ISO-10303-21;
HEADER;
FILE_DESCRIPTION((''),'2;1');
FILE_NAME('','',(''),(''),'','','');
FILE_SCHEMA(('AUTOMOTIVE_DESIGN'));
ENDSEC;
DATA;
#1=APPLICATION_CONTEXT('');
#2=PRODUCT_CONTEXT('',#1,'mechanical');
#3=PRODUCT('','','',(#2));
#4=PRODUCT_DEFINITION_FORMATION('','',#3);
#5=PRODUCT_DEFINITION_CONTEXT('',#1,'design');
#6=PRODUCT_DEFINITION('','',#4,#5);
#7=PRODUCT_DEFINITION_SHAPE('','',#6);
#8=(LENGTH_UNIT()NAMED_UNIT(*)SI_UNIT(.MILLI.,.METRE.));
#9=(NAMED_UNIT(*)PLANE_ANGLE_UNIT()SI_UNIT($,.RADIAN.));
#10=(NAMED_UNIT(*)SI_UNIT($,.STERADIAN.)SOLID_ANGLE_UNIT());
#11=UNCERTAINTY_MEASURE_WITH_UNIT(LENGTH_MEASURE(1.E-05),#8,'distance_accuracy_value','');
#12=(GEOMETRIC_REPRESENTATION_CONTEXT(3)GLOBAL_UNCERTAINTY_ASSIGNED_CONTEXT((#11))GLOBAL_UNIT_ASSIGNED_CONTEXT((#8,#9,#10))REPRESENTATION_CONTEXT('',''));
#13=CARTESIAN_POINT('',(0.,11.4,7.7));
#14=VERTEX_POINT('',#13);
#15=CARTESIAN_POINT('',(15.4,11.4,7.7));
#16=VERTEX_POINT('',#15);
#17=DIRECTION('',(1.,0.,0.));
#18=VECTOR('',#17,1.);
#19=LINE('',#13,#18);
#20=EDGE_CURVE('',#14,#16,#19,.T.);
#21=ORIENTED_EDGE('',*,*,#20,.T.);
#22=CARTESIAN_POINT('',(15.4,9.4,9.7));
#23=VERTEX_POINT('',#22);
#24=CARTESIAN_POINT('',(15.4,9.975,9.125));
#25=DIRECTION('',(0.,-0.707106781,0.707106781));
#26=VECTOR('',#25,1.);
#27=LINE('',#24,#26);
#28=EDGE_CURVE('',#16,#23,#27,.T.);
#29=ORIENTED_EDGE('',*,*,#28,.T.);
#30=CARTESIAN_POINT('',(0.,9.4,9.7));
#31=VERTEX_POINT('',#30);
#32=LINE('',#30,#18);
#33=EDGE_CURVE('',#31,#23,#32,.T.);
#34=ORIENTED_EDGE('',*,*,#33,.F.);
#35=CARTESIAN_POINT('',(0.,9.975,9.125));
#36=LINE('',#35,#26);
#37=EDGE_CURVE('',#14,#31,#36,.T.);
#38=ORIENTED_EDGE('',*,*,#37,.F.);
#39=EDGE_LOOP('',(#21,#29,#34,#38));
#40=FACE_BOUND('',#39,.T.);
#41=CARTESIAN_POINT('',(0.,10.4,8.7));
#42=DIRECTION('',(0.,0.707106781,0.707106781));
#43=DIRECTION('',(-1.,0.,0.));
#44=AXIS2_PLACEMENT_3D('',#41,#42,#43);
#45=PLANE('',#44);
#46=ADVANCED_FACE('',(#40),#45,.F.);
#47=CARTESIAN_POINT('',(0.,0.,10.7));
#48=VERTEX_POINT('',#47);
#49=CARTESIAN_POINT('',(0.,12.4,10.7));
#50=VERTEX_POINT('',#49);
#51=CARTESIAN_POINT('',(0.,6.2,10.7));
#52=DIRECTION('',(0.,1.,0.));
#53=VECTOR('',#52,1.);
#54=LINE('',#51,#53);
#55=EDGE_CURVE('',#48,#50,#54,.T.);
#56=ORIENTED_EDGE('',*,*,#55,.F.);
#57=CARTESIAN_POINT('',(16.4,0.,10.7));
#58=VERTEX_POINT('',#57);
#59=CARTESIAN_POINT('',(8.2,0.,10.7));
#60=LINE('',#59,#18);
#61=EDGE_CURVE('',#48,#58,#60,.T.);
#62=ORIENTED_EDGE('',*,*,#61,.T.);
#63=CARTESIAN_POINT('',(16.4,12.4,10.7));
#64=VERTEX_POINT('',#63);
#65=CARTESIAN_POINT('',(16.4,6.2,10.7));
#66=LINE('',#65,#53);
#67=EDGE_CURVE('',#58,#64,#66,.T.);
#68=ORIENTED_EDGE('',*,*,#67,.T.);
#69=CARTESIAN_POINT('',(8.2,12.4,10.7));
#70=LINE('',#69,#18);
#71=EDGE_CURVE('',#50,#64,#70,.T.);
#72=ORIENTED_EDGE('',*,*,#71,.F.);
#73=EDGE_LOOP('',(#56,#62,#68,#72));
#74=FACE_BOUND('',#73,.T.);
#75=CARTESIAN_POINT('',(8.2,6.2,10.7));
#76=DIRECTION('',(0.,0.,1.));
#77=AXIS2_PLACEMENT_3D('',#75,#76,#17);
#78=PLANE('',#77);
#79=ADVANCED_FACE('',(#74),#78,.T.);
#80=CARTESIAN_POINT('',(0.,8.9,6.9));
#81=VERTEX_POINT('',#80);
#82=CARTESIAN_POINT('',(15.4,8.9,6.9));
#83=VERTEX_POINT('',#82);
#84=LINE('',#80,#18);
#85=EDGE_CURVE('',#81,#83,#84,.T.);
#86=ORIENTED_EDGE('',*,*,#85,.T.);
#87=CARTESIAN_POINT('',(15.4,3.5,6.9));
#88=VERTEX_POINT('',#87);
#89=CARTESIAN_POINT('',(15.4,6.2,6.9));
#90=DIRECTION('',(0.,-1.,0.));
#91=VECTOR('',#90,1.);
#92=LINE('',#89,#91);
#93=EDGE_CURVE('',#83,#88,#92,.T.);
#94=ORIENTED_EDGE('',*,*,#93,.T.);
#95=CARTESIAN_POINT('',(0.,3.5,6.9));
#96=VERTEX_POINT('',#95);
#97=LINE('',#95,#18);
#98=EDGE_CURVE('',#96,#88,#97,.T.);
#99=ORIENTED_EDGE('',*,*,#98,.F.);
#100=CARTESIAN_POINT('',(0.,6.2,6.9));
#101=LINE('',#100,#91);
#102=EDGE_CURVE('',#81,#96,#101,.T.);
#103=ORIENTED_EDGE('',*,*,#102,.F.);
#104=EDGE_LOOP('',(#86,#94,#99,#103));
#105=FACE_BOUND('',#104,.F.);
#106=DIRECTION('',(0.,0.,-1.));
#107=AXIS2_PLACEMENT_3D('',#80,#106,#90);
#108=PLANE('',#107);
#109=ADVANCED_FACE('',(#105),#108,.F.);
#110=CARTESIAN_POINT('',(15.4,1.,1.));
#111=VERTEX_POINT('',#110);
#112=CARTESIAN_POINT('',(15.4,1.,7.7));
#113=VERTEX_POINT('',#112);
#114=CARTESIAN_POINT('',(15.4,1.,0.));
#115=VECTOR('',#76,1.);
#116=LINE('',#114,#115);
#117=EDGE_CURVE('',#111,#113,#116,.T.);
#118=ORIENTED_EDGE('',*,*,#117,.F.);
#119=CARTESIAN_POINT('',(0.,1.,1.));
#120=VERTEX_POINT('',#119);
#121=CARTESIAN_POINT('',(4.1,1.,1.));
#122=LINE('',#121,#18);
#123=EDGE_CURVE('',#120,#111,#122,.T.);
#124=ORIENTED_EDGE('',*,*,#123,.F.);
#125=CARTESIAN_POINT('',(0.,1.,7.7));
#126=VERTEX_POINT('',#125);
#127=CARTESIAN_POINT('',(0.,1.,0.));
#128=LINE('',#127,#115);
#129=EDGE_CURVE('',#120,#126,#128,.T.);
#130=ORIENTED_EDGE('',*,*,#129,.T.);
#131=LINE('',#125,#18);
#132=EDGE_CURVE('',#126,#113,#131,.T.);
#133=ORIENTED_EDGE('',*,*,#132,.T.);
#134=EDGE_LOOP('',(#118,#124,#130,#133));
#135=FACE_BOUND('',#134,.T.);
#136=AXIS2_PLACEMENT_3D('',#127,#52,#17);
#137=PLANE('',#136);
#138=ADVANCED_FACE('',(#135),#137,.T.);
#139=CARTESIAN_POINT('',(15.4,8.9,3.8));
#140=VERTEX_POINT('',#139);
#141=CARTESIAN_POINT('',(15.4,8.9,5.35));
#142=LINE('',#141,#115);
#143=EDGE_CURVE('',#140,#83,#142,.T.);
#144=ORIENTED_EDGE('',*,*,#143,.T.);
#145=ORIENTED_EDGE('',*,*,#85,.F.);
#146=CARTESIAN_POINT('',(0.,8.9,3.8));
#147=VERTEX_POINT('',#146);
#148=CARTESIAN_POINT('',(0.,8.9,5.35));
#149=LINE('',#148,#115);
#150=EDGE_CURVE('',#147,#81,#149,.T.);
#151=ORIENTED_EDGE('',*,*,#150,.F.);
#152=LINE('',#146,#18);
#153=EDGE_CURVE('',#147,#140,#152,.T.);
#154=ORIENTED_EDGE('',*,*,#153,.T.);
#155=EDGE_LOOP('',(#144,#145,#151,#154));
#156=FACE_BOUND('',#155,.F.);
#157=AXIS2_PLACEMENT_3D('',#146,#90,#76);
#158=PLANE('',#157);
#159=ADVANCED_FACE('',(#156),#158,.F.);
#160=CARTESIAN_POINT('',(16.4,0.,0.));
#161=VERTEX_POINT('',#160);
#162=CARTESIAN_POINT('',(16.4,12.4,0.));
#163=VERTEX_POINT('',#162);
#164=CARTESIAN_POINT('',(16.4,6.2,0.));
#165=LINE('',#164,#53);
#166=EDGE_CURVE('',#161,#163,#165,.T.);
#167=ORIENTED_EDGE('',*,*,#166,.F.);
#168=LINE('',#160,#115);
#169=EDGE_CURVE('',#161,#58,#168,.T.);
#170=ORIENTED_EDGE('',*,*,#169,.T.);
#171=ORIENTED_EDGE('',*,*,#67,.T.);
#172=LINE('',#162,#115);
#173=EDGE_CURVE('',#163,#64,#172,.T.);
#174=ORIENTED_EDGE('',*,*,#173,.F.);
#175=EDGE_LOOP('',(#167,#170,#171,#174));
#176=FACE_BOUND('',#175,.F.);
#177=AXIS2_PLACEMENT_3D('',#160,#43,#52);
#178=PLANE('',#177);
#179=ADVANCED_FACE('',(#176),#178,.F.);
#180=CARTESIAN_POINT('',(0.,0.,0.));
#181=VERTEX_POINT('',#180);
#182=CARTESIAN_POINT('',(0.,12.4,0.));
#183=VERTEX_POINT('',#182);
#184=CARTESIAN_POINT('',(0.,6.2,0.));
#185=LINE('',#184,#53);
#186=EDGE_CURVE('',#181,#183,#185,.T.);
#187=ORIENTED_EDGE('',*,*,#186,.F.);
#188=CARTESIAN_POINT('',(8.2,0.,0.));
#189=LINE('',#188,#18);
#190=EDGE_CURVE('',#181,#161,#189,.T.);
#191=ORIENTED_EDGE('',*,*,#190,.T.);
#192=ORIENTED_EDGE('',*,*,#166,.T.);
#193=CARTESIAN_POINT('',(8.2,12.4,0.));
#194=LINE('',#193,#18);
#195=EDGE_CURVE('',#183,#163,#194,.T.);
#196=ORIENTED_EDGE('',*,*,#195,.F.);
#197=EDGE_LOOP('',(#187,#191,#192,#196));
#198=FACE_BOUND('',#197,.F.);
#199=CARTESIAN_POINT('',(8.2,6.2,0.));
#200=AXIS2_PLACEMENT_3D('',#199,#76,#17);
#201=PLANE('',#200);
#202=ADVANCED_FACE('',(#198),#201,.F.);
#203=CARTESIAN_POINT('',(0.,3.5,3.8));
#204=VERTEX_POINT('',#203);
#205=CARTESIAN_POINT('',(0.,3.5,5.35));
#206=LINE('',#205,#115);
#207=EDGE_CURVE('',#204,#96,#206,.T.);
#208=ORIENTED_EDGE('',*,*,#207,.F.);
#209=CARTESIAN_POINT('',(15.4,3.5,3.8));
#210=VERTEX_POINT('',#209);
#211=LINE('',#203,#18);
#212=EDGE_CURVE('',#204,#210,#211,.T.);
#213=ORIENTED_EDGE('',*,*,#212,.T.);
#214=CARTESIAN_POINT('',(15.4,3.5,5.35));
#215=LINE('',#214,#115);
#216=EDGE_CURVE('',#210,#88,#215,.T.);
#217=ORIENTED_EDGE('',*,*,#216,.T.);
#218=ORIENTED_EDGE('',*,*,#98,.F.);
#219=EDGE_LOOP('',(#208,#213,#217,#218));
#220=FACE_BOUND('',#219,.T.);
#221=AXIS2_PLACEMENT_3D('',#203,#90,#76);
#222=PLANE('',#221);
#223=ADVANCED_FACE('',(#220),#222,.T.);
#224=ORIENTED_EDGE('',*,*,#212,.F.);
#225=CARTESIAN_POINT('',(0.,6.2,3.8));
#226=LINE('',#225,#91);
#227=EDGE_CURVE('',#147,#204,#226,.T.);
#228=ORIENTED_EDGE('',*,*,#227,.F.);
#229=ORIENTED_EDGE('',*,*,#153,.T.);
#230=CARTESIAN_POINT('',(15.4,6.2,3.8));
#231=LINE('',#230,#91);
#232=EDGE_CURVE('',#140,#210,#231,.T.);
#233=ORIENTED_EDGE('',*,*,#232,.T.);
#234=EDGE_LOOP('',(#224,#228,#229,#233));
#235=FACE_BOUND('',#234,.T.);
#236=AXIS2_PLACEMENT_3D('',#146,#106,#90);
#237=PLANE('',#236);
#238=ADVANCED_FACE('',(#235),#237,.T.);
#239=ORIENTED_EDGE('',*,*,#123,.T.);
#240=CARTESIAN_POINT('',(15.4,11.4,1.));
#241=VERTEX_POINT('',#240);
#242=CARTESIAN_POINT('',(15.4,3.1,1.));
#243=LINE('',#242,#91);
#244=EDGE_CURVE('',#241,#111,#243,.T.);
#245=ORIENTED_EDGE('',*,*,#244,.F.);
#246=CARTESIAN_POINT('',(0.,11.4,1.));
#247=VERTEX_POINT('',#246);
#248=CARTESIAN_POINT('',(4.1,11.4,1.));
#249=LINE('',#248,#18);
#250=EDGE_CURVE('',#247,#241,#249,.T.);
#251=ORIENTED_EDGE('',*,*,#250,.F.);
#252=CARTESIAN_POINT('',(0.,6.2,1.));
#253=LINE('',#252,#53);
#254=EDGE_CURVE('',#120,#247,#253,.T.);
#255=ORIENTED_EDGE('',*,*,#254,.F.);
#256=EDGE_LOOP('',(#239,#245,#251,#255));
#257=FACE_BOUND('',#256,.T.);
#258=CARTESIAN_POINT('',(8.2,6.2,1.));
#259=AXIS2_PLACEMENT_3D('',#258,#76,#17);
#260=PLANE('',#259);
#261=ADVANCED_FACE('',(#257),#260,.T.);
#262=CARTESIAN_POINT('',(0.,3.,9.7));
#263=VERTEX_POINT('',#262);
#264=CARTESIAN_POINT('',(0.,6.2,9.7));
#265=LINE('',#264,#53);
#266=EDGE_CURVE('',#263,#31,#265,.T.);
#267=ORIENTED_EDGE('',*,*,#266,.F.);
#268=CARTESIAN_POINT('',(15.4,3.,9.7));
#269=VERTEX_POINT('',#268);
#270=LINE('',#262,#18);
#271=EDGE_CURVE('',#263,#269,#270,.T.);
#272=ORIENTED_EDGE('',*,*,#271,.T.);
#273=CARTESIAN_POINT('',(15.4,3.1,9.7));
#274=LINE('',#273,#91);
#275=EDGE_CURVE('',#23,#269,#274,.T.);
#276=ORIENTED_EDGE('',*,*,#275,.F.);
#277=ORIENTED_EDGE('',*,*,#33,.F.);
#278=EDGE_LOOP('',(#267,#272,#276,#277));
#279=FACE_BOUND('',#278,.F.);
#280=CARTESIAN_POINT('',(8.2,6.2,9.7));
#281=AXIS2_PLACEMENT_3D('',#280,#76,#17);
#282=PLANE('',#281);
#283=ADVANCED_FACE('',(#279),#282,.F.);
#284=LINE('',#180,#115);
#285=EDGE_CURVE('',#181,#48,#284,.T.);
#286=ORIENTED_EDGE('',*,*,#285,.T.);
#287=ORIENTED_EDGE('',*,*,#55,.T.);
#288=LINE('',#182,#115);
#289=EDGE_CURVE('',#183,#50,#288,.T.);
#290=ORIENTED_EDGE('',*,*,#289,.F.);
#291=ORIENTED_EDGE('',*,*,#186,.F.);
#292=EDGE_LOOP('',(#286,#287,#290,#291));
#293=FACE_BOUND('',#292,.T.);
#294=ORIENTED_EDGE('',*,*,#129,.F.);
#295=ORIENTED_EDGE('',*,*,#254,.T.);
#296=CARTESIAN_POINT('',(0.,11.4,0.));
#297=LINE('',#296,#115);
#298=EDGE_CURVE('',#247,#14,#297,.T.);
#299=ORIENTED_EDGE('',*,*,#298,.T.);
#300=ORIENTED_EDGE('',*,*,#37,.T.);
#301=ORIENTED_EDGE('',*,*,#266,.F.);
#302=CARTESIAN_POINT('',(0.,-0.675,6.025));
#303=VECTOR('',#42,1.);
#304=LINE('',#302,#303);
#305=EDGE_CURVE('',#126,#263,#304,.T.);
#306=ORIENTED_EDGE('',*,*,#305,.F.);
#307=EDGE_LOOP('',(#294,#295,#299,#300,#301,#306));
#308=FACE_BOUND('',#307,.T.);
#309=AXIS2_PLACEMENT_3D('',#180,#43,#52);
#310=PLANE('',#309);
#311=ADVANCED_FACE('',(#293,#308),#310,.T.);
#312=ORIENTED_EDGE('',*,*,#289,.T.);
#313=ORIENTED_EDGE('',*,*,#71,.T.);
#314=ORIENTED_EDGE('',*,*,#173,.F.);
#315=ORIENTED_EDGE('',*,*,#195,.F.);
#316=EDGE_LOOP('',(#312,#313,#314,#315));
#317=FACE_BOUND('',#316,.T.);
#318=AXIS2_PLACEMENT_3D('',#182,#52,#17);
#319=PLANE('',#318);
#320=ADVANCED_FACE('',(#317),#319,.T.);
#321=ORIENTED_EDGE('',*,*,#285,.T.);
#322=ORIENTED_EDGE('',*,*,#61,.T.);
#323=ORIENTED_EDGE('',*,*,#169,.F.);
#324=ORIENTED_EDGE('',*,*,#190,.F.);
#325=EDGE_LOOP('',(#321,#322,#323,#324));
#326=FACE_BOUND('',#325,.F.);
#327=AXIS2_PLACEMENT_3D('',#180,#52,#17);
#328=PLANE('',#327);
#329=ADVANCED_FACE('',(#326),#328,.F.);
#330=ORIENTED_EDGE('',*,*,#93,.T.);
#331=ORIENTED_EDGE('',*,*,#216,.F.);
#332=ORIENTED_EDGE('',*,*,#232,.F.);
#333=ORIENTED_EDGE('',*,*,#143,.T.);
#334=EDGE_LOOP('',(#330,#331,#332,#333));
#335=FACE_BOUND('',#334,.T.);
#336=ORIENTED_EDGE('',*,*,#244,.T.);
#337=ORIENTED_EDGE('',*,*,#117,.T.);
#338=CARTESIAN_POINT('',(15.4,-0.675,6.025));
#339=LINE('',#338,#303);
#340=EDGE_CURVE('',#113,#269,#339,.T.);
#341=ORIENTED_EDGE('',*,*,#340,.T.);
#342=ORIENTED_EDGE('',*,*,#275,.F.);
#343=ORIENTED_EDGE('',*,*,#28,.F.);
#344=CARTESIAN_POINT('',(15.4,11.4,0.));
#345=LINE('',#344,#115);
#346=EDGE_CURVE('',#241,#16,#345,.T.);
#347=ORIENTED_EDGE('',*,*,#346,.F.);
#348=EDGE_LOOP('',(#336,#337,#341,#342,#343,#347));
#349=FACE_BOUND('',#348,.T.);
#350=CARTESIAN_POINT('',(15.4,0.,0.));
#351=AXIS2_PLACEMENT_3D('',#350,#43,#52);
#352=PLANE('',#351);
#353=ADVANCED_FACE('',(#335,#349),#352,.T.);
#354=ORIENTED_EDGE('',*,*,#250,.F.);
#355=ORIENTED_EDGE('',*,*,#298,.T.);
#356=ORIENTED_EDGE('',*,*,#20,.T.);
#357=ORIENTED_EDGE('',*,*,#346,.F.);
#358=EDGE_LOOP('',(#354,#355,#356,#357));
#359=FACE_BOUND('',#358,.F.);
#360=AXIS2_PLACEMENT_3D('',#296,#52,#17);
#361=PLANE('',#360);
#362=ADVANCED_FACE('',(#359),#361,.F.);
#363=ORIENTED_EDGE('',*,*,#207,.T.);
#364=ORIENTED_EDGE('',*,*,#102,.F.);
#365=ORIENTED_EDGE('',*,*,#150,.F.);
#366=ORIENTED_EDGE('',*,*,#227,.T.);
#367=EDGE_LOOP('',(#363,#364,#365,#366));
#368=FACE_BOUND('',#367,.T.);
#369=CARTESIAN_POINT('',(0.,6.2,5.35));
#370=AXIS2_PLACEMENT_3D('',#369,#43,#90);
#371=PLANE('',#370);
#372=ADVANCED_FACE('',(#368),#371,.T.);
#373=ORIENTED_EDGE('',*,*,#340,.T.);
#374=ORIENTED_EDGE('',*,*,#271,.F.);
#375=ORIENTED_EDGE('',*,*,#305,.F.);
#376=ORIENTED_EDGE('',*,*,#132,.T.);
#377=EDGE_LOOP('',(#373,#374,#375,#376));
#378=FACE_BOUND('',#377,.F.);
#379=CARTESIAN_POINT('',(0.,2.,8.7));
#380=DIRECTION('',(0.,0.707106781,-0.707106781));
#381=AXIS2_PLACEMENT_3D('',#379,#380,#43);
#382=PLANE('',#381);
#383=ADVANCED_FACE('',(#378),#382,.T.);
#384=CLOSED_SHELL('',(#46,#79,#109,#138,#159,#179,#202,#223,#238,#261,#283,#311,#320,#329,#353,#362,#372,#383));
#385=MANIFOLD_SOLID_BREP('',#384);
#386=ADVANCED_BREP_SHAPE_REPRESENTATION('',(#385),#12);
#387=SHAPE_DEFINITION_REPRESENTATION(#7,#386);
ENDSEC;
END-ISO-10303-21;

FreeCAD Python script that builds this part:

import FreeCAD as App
import Part
import Sketcher
from FreeCAD import Vector


def edges_at(feature, points):
    """Names of the edges that pass closest to the given points."""
    edges = feature.Shape.Edges
    near = lambda p: min(range(len(edges)), key=lambda i: edges[i].distToShape(Part.Vertex(*p))[0])
    return sorted({f"Edge{near(p) + 1}" for p in points})


def faces_at(feature, points):
    """Names of the faces that lie closest to the given points."""
    faces = feature.Shape.Faces
    near = lambda p: min(range(len(faces)), key=lambda i: faces[i].distToShape(Part.Vertex(*p))[0])
    return sorted({f"Face{near(p) + 1}" for p in points})

doc = App.newDocument("Part")
body = doc.addObject("PartDesign::Body", "Body")

sketch1 = doc.addObject("Sketcher::SketchObject", "Sketch")
body.addObject(sketch1)
sketch1.AttachmentSupport = (doc.XY_Plane, [""])
sketch1.MapMode = "FlatFace"
sketch1.addGeometry(Part.LineSegment(Vector(0, 12, 0), Vector(0, 0, 0)), False)
sketch1.addGeometry(Part.LineSegment(Vector(0, 0, 0), Vector(16, 0, 0)), False)
sketch1.addGeometry(Part.LineSegment(Vector(16, 0, 0), Vector(16, 12, 0)), False)
sketch1.addGeometry(Part.LineSegment(Vector(16, 12, 0), Vector(0, 12, 0)), False)
sketch1.addConstraint(Sketcher.Constraint("Coincident", 0, 2, 1, 1))
sketch1.addConstraint(Sketcher.Constraint("Coincident", 1, 2, 2, 1))
sketch1.addConstraint(Sketcher.Constraint("Coincident", 2, 2, 3, 1))
sketch1.addConstraint(Sketcher.Constraint("Coincident", 3, 2, 0, 1))
sketch1.addConstraint(Sketcher.Constraint("Vertical", 0))
sketch1.addConstraint(Sketcher.Constraint("Horizontal", 1))
sketch1.addConstraint(Sketcher.Constraint("Vertical", 2))
sketch1.addConstraint(Sketcher.Constraint("Horizontal", 3))
sketch1.addConstraint(Sketcher.Constraint("Coincident", 0, 2, -1, 1))
sketch1.addConstraint(Sketcher.Constraint("DistanceX", 1, 1, 1, 2, 16.4))
sketch1.addConstraint(Sketcher.Constraint("DistanceY", 0, 2, 0, 1, 12.4))
pad1 = doc.addObject("PartDesign::Pad", "Pad")
body.addObject(pad1)
pad1.Profile = sketch1
pad1.Length = 10.7
doc.recompute()

thickness = doc.addObject("PartDesign::Thickness", "Thickness")
body.addObject(thickness)
thickness.Base = (pad1, faces_at(pad1, [(0, 6.2, 5.35)]))
thickness.Value = 1
thickness.Reversed = True
thickness.Join = "Arc"

sketch2 = doc.addObject("Sketcher::SketchObject", "Sketch001")
body.addObject(sketch2)
sketch2.AttachmentSupport = (doc.YZ_Plane, [""])
sketch2.MapMode = "FlatFace"
sketch2.addGeometry(Part.LineSegment(Vector(8.9, 6.9, 0), Vector(8.9, 3.8, 0)), False)
sketch2.addGeometry(Part.LineSegment(Vector(8.9, 3.8, 0), Vector(3.5, 3.8, 0)), False)
sketch2.addGeometry(Part.LineSegment(Vector(3.5, 3.8, 0), Vector(3.5, 6.9, 0)), False)
sketch2.addGeometry(Part.LineSegment(Vector(3.5, 6.9, 0), Vector(8.9, 6.9, 0)), False)
sketch2.addConstraint(Sketcher.Constraint("Coincident", 0, 2, 1, 1))
sketch2.addConstraint(Sketcher.Constraint("Coincident", 1, 2, 2, 1))
sketch2.addConstraint(Sketcher.Constraint("Coincident", 2, 2, 3, 1))
sketch2.addConstraint(Sketcher.Constraint("Coincident", 3, 2, 0, 1))
sketch2.addConstraint(Sketcher.Constraint("Vertical", 0))
sketch2.addConstraint(Sketcher.Constraint("Horizontal", 1))
sketch2.addConstraint(Sketcher.Constraint("Vertical", 2))
sketch2.addConstraint(Sketcher.Constraint("Horizontal", 3))
sketch2.addConstraint(Sketcher.Constraint("DistanceX", 1, 2, 1, 1, 5.4))
sketch2.addConstraint(Sketcher.Constraint("DistanceY", 0, 2, 0, 1, 3.1))
sketch2.addConstraint(Sketcher.Constraint("DistanceX", -1, 1, 0, 2, 8.9))
sketch2.addConstraint(Sketcher.Constraint("DistanceY", -1, 1, 0, 2, 3.8))
pad2 = doc.addObject("PartDesign::Pad", "Pad001")
body.addObject(pad2)
pad2.Profile = sketch2
pad2.Type = "UpToLast"
doc.recompute()

chamfer = doc.addObject("PartDesign::Chamfer", "Chamfer")
body.addObject(chamfer)
chamfer.Base = (pad2, edges_at(pad2, [(7.7, 11.4, 9.7), (7.7, 1, 9.7)]))
chamfer.Size = 2

doc.recompute()
